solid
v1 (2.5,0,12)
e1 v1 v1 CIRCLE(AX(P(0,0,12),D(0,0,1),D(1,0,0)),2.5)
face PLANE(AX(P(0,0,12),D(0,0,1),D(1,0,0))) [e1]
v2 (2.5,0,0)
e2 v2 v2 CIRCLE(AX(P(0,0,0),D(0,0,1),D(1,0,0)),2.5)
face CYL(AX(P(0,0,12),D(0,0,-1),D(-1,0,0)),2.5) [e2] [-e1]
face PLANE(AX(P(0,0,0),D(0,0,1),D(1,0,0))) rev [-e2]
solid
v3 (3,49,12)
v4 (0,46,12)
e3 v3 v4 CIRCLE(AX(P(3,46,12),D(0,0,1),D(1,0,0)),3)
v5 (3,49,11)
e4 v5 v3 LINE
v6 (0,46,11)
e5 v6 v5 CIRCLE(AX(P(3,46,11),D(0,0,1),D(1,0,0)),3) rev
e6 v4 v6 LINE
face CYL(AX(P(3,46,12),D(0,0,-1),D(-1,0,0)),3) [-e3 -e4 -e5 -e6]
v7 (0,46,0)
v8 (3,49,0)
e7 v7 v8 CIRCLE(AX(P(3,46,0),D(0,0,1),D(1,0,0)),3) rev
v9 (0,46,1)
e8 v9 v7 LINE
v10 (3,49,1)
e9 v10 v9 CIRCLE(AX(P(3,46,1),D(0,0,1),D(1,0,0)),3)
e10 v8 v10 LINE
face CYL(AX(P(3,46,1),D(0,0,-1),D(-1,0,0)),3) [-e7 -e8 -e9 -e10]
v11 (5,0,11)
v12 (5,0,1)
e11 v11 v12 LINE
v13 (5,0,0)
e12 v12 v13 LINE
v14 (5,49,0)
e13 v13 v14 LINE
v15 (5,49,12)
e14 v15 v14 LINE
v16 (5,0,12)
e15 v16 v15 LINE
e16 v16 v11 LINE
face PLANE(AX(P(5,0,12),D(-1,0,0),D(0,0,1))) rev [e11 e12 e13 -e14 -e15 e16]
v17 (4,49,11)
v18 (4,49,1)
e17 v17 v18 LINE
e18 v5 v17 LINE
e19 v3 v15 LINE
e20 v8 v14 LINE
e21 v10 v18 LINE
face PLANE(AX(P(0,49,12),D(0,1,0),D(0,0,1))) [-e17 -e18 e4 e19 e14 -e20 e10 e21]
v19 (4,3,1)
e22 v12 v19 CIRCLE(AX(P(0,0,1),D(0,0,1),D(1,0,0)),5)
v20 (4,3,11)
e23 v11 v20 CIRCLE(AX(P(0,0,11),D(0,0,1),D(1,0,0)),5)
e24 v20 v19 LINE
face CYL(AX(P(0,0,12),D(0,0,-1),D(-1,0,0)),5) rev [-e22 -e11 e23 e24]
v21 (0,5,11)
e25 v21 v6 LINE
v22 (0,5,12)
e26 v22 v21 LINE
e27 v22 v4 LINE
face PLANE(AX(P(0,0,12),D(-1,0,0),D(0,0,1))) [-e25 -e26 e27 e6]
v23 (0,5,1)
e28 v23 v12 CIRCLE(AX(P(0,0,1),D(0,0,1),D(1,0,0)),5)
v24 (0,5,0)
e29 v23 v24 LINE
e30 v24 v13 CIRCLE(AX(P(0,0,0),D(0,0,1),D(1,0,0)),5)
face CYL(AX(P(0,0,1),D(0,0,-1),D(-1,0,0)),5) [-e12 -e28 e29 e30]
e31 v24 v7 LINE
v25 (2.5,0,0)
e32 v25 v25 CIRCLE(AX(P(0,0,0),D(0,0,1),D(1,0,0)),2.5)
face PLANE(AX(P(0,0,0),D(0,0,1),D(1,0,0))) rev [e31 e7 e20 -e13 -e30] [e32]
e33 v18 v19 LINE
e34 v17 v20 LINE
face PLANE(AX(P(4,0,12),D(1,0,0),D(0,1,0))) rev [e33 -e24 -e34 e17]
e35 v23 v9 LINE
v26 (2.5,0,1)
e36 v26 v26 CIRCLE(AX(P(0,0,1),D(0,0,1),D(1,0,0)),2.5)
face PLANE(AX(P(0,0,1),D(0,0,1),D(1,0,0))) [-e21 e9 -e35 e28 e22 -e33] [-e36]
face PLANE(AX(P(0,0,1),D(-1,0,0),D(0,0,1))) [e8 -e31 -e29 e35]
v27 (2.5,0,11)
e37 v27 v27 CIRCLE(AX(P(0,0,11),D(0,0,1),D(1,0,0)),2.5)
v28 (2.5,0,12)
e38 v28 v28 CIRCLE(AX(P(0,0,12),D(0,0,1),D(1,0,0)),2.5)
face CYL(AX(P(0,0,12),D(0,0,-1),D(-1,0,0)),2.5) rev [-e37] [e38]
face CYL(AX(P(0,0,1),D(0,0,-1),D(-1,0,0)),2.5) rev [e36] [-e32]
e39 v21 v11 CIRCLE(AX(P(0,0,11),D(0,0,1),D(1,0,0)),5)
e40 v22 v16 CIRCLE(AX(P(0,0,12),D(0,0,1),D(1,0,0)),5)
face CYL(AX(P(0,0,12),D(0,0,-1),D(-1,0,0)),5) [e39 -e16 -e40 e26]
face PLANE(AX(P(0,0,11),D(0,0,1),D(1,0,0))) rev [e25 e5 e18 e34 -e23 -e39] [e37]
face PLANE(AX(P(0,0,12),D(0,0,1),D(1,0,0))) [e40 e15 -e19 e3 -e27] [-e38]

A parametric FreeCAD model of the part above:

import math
import FreeCAD as App
import Part
import Sketcher


def edges_at(feature, points):
    """Names of the edges that pass closest to the given points."""
    edges = feature.Shape.Edges
    near = lambda p: min(range(len(edges)), key=lambda i: edges[i].distToShape(Part.Vertex(*p))[0])
    return sorted({f"Edge{near(p) + 1}" for p in points})

doc = App.newDocument("Part")
body = doc.addObject("PartDesign::Body", "Body")

sketch1 = body.newObject("Sketcher::SketchObject", "Sketch")
sketch1.AttachmentSupport = (doc.getObject("XY_Plane"), [""])
sketch1.MapMode = "FlatFace"
sketch1.addGeometry(Part.ArcOfCircle(Part.Circle(App.Vector(0, 0, 0), App.Vector(0, 0, 1), 5), math.radians(0), math.radians(36.869898)), False)
sketch1.addGeometry(Part.LineSegment(App.Vector(5, 0, 0), App.Vector(5, 49, 0)), False)
sketch1.addGeometry(Part.LineSegment(App.Vector(5, 49, 0), App.Vector(4, 49, 0)), False)
sketch1.addGeometry(Part.LineSegment(App.Vector(4, 49, 0), App.Vector(4, 3, 0)), False)
sketch1.addConstraint(Sketcher.Constraint("Tangent", 0, 1, 1, 1))
sketch1.addConstraint(Sketcher.Constraint("Coincident", 1, 2, 2, 1))
sketch1.addConstraint(Sketcher.Constraint("Coincident", 2, 2, 3, 1))
sketch1.addConstraint(Sketcher.Constraint("Coincident", 3, 2, 0, 2))
sketch1.addConstraint(Sketcher.Constraint("Vertical", 1))
sketch1.addConstraint(Sketcher.Constraint("Horizontal", 2))
sketch1.addConstraint(Sketcher.Constraint("Vertical", 3))
sketch1.addConstraint(Sketcher.Constraint("Coincident", 0, 3, -1, 1))
sketch1.addConstraint(Sketcher.Constraint("Radius", 0, 5.0))
sketch1.addConstraint(Sketcher.Constraint("DistanceX", 2, 2, 2, 1, 1.0))
sketch1.addConstraint(Sketcher.Constraint("DistanceY", 1, 1, 1, 2, 49.0))
pad1 = body.newObject("PartDesign::Pad", "Pad")
pad1.Profile = sketch1
pad1.Length = 12

sketch2 = body.newObject("Sketcher::SketchObject", "Sketch001")
sketch2.AttachmentSupport = (doc.getObject("XY_Plane"), [""])
sketch2.MapMode = "FlatFace"
sketch2.addGeometry(Part.ArcOfCircle(Part.Circle(App.Vector(0, 0, 0), App.Vector(0, 0, 1), 5), math.radians(90), math.radians(396.869898)), False)
sketch2.addGeometry(Part.LineSegment(App.Vector(4, 3, 0), App.Vector(4, 49, 0)), False)
sketch2.addGeometry(Part.LineSegment(App.Vector(4, 49, 0), App.Vector(0, 49, 0)), False)
sketch2.addGeometry(Part.LineSegment(App.Vector(0, 49, 0), App.Vector(0, 5, 0)), False)
sketch2.addGeometry(Part.Circle(App.Vector(0, 0, 0), App.Vector(0, 0, 1), 2.5), False)
sketch2.addConstraint(Sketcher.Constraint("Coincident", 0, 2, 1, 1))
sketch2.addConstraint(Sketcher.Constraint("Coincident", 1, 2, 2, 1))
sketch2.addConstraint(Sketcher.Constraint("Coincident", 2, 2, 3, 1))
sketch2.addConstraint(Sketcher.Constraint("Coincident", 3, 2, 0, 1))
sketch2.addConstraint(Sketcher.Constraint("Vertical", 1))
sketch2.addConstraint(Sketcher.Constraint("Horizontal", 2))
sketch2.addConstraint(Sketcher.Constraint("Vertical", 3))
sketch2.addConstraint(Sketcher.Constraint("Coincident", 0, 3, -1, 1))
sketch2.addConstraint(Sketcher.Constraint("Coincident", 4, 3, -1, 1))
sketch2.addConstraint(Sketcher.Constraint("PointOnObject", 2, 2, -2))
sketch2.addConstraint(Sketcher.Constraint("Diameter", 4, 5.0))
sketch2.addConstraint(Sketcher.Constraint("Radius", 0, 5.0))
sketch2.addConstraint(Sketcher.Constraint("DistanceX", 2, 2, 2, 1, 4.0))
sketch2.addConstraint(Sketcher.Constraint("DistanceY", 1, 1, 1, 2, 46.0))
pad2 = body.newObject("PartDesign::Pad", "Pad001")
pad2.Profile = sketch2
pad2.Length = 1

sketch3 = body.newObject("Sketcher::SketchObject", "Sketch002")
sketch3.AttachmentSupport = (doc.getObject("XY_Plane"), [""])
sketch3.MapMode = "FlatFace"
sketch3.AttachmentOffset = App.Placement(App.Vector(0, 0, 11), App.Rotation())
sketch3.addGeometry(Part.ArcOfCircle(Part.Circle(App.Vector(0, 0, 0), App.Vector(0, 0, 1), 5), math.radians(90), math.radians(396.869898)), False)
sketch3.addGeometry(Part.LineSegment(App.Vector(4, 3, 0), App.Vector(4, 49, 0)), False)
sketch3.addGeometry(Part.LineSegment(App.Vector(4, 49, 0), App.Vector(0, 49, 0)), False)
sketch3.addGeometry(Part.LineSegment(App.Vector(0, 49, 0), App.Vector(0, 5, 0)), False)
sketch3.addGeometry(Part.Circle(App.Vector(0, 0, 0), App.Vector(0, 0, 1), 2.5), False)
sketch3.addConstraint(Sketcher.Constraint("Coincident", 0, 2, 1, 1))
sketch3.addConstraint(Sketcher.Constraint("Coincident", 1, 2, 2, 1))
sketch3.addConstraint(Sketcher.Constraint("Coincident", 2, 2, 3, 1))
sketch3.addConstraint(Sketcher.Constraint("Coincident", 3, 2, 0, 1))
sketch3.addConstraint(Sketcher.Constraint("Vertical", 1))
sketch3.addConstraint(Sketcher.Constraint("Horizontal", 2))
sketch3.addConstraint(Sketcher.Constraint("Vertical", 3))
sketch3.addConstraint(Sketcher.Constraint("Coincident", 0, 3, -1, 1))
sketch3.addConstraint(Sketcher.Constraint("Coincident", 4, 3, -1, 1))
sketch3.addConstraint(Sketcher.Constraint("PointOnObject", 2, 2, -2))
sketch3.addConstraint(Sketcher.Constraint("Diameter", 4, 5.0))
sketch3.addConstraint(Sketcher.Constraint("Radius", 0, 5.0))
sketch3.addConstraint(Sketcher.Constraint("DistanceX", 2, 2, 2, 1, 4.0))
sketch3.addConstraint(Sketcher.Constraint("DistanceY", 1, 1, 1, 2, 46.0))
pad3 = body.newObject("PartDesign::Pad", "Pad002")
pad3.Profile = sketch3
pad3.Length = 1
doc.recompute()

fillet = body.newObject("PartDesign::Fillet", "Fillet")
fillet.Base = (pad3, edges_at(pad3, [(0, 49, 0.5), (0, 49, 11.5)]))
fillet.Radius = 3
body2 = doc.addObject("PartDesign::Body", "Body001")

sketch4 = body2.newObject("Sketcher::SketchObject", "Sketch003")
sketch4.AttachmentSupport = (doc.getObject("XY_Plane001"), [""])
sketch4.MapMode = "FlatFace"
sketch4.addGeometry(Part.Circle(App.Vector(0, 0, 0), App.Vector(0, 0, 1), 2.5), False)
sketch4.addConstraint(Sketcher.Constraint("Coincident", 0, 3, -1, 1))
sketch4.addConstraint(Sketcher.Constraint("Diameter", 0, 5.0))
pad4 = body2.newObject("PartDesign::Pad", "Pad003")
pad4.Profile = sketch4
pad4.Length = 12

doc.recompute()
